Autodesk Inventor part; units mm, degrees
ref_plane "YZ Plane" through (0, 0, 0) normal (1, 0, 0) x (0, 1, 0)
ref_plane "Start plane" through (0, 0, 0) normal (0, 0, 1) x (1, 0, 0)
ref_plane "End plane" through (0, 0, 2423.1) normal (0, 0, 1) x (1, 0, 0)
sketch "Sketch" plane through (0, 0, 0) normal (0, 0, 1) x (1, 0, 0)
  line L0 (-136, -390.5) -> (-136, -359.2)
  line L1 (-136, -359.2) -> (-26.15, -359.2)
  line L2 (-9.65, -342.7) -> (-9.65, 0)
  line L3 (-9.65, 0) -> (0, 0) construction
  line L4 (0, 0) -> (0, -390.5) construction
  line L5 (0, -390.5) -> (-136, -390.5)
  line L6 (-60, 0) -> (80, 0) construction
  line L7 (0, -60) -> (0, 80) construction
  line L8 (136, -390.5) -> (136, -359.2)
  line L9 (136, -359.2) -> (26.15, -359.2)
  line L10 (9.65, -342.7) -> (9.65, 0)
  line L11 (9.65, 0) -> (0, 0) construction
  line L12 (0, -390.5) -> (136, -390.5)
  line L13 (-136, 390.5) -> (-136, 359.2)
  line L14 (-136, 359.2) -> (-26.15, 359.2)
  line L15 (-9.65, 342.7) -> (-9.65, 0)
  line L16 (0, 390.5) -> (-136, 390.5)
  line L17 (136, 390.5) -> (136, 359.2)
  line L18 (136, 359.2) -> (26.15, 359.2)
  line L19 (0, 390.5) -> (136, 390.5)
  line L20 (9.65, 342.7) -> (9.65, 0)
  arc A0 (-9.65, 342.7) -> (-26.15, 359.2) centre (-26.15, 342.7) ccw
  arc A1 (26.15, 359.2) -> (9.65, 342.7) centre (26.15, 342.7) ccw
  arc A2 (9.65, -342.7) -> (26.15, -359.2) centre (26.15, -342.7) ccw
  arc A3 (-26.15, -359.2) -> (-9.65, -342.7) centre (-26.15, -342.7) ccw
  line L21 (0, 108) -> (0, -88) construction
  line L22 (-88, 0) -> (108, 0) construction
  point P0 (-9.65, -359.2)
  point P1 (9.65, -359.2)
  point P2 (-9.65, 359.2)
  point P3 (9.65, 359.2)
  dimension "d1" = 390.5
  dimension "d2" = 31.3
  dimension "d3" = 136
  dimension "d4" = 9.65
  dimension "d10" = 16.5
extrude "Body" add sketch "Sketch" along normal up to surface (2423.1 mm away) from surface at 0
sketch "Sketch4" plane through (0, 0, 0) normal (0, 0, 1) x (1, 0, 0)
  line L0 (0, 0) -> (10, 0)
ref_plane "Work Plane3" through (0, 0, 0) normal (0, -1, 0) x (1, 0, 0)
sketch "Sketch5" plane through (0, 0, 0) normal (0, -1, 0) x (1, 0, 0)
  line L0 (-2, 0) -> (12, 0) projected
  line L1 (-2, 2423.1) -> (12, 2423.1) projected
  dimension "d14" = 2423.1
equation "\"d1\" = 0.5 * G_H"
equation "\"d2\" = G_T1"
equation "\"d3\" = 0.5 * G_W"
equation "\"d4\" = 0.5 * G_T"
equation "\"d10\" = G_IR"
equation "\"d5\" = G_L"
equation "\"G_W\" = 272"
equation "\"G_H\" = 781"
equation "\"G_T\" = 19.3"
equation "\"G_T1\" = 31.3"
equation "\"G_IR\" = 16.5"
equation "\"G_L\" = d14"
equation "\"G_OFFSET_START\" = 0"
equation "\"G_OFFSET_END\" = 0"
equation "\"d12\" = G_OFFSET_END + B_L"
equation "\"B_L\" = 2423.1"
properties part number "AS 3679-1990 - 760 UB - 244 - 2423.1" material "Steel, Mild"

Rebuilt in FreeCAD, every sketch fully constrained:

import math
import FreeCAD as App
import Part
import Sketcher
from FreeCAD import Vector
Q = App.Units.Quantity

doc = App.newDocument("Part")
params = doc.addObject("Spreadsheet::Sheet", "Params")
for row, (alias, value) in enumerate([
    ("sketch1_radius", "16.5 mm"),
    ("sketch1_height", "31.3 mm"),
    ("pad1_length", "2423.1 mm"),
], start=1):
    params.set(f"A{row}", alias)
    params.set(f"B{row}", "=" + value)
    params.setAlias(f"B{row}", alias)

body = doc.addObject("PartDesign::Body", "Body")

# Sketch on XY plane
sketch1 = body.newObject("Sketcher::SketchObject", "Sketch")
sketch1.AttachmentSupport = (doc.getObject("XY_Plane"), [""])
sketch1.MapMode = "FlatFace"
sketch1.addGeometry([
    Part.LineSegment(Vector(-136, -359, 0), Vector(-136, -390, 0)),  # 0
    Part.LineSegment(Vector(-136, -390, 0), Vector(136, -390, 0)),  # 1
    Part.LineSegment(Vector(136, -390, 0), Vector(136, -359, 0)),  # 2
    Part.LineSegment(Vector(136, -359, 0), Vector(26, -359, 0)),  # 3
    Part.ArcOfCircle(Part.Circle(Vector(26, -343, 0), Vector(0, 0, 1), 16), math.radians(180), math.radians(270)),  # 4
    Part.LineSegment(Vector(10, -343, 0), Vector(10, 343, 0)),  # 5
    Part.ArcOfCircle(Part.Circle(Vector(26, 343, 0), Vector(0, 0, 1), 16), math.radians(90), math.radians(180)),  # 6
    Part.LineSegment(Vector(26, 359, 0), Vector(136, 359, 0)),  # 7
    Part.LineSegment(Vector(136, 359, 0), Vector(136, 390, 0)),  # 8
    Part.LineSegment(Vector(136, 390, 0), Vector(-136, 390, 0)),  # 9
    Part.LineSegment(Vector(-136, 390, 0), Vector(-136, 359, 0)),  # 10
    Part.LineSegment(Vector(-136, 359, 0), Vector(-26, 359, 0)),  # 11
    Part.ArcOfCircle(Part.Circle(Vector(-26, 343, 0), Vector(0, 0, 1), 16), math.radians(0), math.radians(90)),  # 12
    Part.LineSegment(Vector(-10, 343, 0), Vector(-10, -343, 0)),  # 13
    Part.ArcOfCircle(Part.Circle(Vector(-26, -343, 0), Vector(0, 0, 1), 16), math.radians(-90), math.radians(0)),  # 14
    Part.LineSegment(Vector(-26, -359, 0), Vector(-136, -359, 0)),  # 15
], False)
sketch1.addConstraint([
    Sketcher.Constraint("Coincident", 0, 2, 1, 1),
    Sketcher.Constraint("Coincident", 1, 2, 2, 1),
    Sketcher.Constraint("Coincident", 2, 2, 3, 1),
    Sketcher.Constraint("Tangent", 3, 2, 4, 2),
    Sketcher.Constraint("Tangent", 4, 1, 5, 1),
    Sketcher.Constraint("Tangent", 5, 2, 6, 2),
    Sketcher.Constraint("Tangent", 6, 1, 7, 1),
    Sketcher.Constraint("Coincident", 7, 2, 8, 1),
    Sketcher.Constraint("Coincident", 8, 2, 9, 1),
    Sketcher.Constraint("Coincident", 9, 2, 10, 1),
    Sketcher.Constraint("Coincident", 10, 2, 11, 1),
    Sketcher.Constraint("Tangent", 11, 2, 12, 2),
    Sketcher.Constraint("Tangent", 12, 1, 13, 1),
    Sketcher.Constraint("Tangent", 13, 2, 14, 2),
    Sketcher.Constraint("Tangent", 14, 1, 15, 1),
    Sketcher.Constraint("Coincident", 15, 2, 0, 1),
    Sketcher.Constraint("Vertical", 0),
    Sketcher.Constraint("Horizontal", 1),
    Sketcher.Constraint("Vertical", 2),
    Sketcher.Constraint("Horizontal", 3),
    Sketcher.Constraint("Vertical", 5),
    Sketcher.Constraint("Horizontal", 7),
    Sketcher.Constraint("Vertical", 8),
    Sketcher.Constraint("Horizontal", 9),
    Sketcher.Constraint("Vertical", 10),
    Sketcher.Constraint("Horizontal", 11),
    Sketcher.Constraint("Vertical", 13),
    Sketcher.Constraint("Horizontal", 15),
    Sketcher.Constraint("Equal", 4, 6),
    Sketcher.Constraint("Equal", 6, 12),
    Sketcher.Constraint("Equal", 12, 14),
    Sketcher.Constraint("Symmetric", 4, 3, 12, 3, -1, 1),
    Sketcher.Constraint("Symmetric", 0, 2, 8, 2, -1, 1),
    Sketcher.Constraint("Symmetric", 7, 2, 10, 2, -2),
    Sketcher.Constraint("Symmetric", 2, 2, 15, 2, -2),
    Sketcher.Constraint("Radius", 4, Q("16.5 mm")),
    Sketcher.Constraint("DistanceY", 0, 2, 0, 1, Q("31.3 mm")),
    Sketcher.Constraint("DistanceX", 0, 2, -1, 1, Q("136 mm")),
    Sketcher.Constraint("DistanceY", 0, 2, -1, 1, Q("390.5 mm")),
    Sketcher.Constraint("DistanceX", -1, 1, 4, 1, Q("9.65 mm")),
])
sketch1.setExpression("Constraints[35]", "Params.sketch1_radius")
sketch1.setExpression("Constraints[36]", "Params.sketch1_height")
pad1 = body.newObject("PartDesign::Pad", "Pad")
pad1.Profile = sketch1
pad1.setExpression("Length", "Params.pad1_length")

doc.recompute()
